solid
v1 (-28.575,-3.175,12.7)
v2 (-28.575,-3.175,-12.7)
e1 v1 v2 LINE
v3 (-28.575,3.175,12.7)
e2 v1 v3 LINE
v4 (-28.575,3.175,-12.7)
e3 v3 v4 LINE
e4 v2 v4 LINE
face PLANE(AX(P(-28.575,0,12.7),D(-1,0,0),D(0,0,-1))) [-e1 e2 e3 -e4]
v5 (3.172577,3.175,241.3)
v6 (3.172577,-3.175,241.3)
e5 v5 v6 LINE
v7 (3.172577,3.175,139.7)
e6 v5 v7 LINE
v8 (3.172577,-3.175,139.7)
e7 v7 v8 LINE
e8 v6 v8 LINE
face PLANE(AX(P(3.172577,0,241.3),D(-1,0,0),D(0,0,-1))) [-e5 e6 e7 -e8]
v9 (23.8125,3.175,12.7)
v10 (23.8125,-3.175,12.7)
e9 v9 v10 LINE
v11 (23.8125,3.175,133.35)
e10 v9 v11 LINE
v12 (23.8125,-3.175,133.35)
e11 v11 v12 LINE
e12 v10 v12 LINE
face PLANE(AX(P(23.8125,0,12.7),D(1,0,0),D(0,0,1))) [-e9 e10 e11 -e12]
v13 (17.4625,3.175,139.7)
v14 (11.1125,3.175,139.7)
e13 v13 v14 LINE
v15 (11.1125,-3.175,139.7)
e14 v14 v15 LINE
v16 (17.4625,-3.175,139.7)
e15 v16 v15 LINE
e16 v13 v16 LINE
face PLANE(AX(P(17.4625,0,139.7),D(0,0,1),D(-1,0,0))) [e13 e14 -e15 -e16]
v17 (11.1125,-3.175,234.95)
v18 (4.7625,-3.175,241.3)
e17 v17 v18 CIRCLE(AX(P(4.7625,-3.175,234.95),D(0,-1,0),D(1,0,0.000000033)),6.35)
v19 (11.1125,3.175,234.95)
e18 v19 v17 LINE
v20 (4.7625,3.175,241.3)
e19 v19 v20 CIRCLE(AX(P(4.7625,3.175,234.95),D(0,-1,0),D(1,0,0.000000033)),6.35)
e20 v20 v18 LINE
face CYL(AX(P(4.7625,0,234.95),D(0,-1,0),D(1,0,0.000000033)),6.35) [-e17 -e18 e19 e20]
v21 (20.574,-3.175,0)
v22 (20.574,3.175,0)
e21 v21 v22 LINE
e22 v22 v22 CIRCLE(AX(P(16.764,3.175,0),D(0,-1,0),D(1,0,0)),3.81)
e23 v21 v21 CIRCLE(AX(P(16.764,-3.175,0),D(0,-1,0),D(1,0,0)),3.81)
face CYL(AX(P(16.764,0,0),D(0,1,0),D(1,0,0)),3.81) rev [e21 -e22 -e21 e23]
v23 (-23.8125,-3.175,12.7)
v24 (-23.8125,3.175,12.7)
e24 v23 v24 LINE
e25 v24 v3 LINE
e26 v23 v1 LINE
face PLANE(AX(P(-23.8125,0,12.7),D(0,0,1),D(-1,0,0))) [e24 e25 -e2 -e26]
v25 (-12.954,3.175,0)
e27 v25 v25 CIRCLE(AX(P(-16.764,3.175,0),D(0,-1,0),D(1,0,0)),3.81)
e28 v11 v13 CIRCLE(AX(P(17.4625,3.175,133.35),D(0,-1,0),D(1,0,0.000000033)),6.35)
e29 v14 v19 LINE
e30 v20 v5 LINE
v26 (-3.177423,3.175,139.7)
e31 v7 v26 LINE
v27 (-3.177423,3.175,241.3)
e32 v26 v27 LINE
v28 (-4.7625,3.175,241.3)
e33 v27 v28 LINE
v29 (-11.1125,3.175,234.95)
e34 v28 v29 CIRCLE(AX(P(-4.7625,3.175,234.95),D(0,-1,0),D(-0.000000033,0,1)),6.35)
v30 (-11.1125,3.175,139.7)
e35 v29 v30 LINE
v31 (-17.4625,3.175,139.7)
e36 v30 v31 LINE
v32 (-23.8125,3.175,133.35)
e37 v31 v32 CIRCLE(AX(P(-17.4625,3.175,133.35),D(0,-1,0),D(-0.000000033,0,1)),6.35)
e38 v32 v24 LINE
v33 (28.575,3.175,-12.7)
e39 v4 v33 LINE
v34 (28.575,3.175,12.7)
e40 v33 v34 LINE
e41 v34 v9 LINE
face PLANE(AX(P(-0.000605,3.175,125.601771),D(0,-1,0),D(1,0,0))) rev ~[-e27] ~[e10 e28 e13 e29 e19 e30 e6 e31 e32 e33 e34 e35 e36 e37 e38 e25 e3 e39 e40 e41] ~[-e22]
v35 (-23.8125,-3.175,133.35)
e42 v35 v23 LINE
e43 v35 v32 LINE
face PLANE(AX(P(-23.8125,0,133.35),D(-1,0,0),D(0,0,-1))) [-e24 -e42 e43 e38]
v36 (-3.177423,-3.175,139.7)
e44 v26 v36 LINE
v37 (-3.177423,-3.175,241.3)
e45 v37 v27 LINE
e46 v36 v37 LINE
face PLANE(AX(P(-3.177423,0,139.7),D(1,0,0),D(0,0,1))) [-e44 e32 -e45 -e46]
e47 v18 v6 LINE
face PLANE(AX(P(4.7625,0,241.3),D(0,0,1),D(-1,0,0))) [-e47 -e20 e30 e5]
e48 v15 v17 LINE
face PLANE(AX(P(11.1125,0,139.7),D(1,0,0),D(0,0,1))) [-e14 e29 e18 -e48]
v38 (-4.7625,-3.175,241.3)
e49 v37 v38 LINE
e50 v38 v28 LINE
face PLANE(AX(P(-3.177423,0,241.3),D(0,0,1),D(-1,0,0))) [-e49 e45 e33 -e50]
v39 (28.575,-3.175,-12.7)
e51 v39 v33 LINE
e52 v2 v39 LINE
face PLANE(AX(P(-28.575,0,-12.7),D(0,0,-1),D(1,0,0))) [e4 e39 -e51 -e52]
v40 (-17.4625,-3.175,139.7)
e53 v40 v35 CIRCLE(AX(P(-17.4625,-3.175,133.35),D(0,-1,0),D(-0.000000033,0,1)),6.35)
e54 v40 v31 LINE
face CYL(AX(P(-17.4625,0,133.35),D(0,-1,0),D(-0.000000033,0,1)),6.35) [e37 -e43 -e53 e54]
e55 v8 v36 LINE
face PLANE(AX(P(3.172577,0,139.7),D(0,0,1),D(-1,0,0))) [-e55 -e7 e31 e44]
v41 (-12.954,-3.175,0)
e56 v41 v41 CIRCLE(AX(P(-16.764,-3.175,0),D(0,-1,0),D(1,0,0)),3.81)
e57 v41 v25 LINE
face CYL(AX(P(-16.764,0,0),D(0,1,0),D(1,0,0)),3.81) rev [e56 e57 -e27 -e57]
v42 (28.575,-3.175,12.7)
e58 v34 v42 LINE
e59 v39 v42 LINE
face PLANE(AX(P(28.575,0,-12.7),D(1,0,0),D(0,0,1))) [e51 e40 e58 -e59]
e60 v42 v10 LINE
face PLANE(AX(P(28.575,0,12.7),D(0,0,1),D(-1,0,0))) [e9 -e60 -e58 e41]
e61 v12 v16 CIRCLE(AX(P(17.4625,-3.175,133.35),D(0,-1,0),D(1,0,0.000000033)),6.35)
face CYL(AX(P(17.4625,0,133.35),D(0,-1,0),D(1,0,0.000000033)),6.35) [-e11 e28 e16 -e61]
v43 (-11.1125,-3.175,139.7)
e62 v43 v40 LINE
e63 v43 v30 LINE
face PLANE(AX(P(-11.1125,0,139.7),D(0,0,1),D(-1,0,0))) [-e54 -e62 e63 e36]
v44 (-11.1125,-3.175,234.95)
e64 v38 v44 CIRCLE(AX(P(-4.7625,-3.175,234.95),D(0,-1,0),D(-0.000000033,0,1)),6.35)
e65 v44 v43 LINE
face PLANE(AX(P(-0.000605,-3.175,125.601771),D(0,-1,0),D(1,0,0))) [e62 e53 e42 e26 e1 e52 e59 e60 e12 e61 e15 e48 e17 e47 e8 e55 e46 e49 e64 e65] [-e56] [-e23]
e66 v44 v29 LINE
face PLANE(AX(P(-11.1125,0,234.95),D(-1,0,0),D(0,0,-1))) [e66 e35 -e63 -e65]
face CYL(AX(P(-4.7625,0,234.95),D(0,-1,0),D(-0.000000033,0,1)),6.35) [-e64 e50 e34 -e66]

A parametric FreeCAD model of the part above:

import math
import FreeCAD as App
import Part
import Sketcher
from FreeCAD import Vector
Q = App.Units.Quantity

doc = App.newDocument("Part")
body = doc.addObject("PartDesign::Body", "Body")

# Sketch on XZ plane
sketch1 = doc.addObject("Sketcher::SketchObject", "Sketch")
body.addObject(sketch1)
sketch1.AttachmentSupport = (doc.XZ_Plane, [""])
sketch1.MapMode = "FlatFace"
sketch1.addGeometry(Part.LineSegment(Vector(28.575, -12.7, 0), Vector(28.575, 12.7, 0)), False)
sketch1.addGeometry(Part.LineSegment(Vector(28.575, 12.7, 0), Vector(23.8125, 12.7, 0)), False)
sketch1.addGeometry(Part.LineSegment(Vector(23.8125, 12.7, 0), Vector(23.8125, 133.35, 0)), False)
sketch1.addGeometry(Part.ArcOfCircle(Part.Circle(Vector(17.4625, 133.35, 0), Vector(0, 0, 1), 6.35), math.radians(0.000002), math.radians(89.999998)), False)
sketch1.addGeometry(Part.LineSegment(Vector(17.4625, 139.7, 0), Vector(11.1125, 139.7, 0)), False)
sketch1.addGeometry(Part.LineSegment(Vector(11.1125, 139.7, 0), Vector(11.1125, 234.95, 0)), False)
sketch1.addGeometry(Part.ArcOfCircle(Part.Circle(Vector(4.7625, 234.95, 0), Vector(0, 0, 1), 6.35), math.radians(0.000002), math.radians(89.999998)), False)
sketch1.addGeometry(Part.LineSegment(Vector(4.7625, 241.3, 0), Vector(3.172577, 241.3, 0)), False)
sketch1.addGeometry(Part.LineSegment(Vector(3.172577, 241.3, 0), Vector(3.172577, 139.7, 0)), False)
sketch1.addGeometry(Part.LineSegment(Vector(3.172577, 139.7, 0), Vector(-3.177423, 139.7, 0)), False)
sketch1.addGeometry(Part.LineSegment(Vector(-3.177423, 139.7, 0), Vector(-3.177423, 241.3, 0)), False)
sketch1.addGeometry(Part.LineSegment(Vector(-3.177423, 241.3, 0), Vector(-4.7625, 241.3, 0)), False)
sketch1.addGeometry(Part.ArcOfCircle(Part.Circle(Vector(-4.7625, 234.95, 0), Vector(0, 0, 1), 6.35), math.radians(90.000002), math.radians(179.999998)), False)
sketch1.addGeometry(Part.LineSegment(Vector(-11.1125, 234.95, 0), Vector(-11.1125, 139.7, 0)), False)
sketch1.addGeometry(Part.LineSegment(Vector(-11.1125, 139.7, 0), Vector(-17.4625, 139.7, 0)), False)
sketch1.addGeometry(Part.ArcOfCircle(Part.Circle(Vector(-17.4625, 133.35, 0), Vector(0, 0, 1), 6.35), math.radians(90.000002), math.radians(179.999998)), False)
sketch1.addGeometry(Part.LineSegment(Vector(-23.8125, 133.35, 0), Vector(-23.8125, 12.7, 0)), False)
sketch1.addGeometry(Part.LineSegment(Vector(-23.8125, 12.7, 0), Vector(-28.575, 12.7, 0)), False)
sketch1.addGeometry(Part.LineSegment(Vector(-28.575, 12.7, 0), Vector(-28.575, -12.7, 0)), False)
sketch1.addGeometry(Part.LineSegment(Vector(-28.575, -12.7, 0), Vector(28.575, -12.7, 0)), False)
sketch1.addGeometry(Part.Circle(Vector(-16.764, 0, 0), Vector(0, 0, 1), 3.81), False)
sketch1.addGeometry(Part.Circle(Vector(16.764, 0, 0), Vector(0, 0, 1), 3.81), False)
sketch1.addConstraint(Sketcher.Constraint("Coincident", 0, 2, 1, 1))
sketch1.addConstraint(Sketcher.Constraint("Coincident", 1, 2, 2, 1))
sketch1.addConstraint(Sketcher.Constraint("Tangent", 2, 2, 3, 1))
sketch1.addConstraint(Sketcher.Constraint("Tangent", 3, 2, 4, 1))
sketch1.addConstraint(Sketcher.Constraint("Coincident", 4, 2, 5, 1))
sketch1.addConstraint(Sketcher.Constraint("Tangent", 5, 2, 6, 1))
sketch1.addConstraint(Sketcher.Constraint("Tangent", 6, 2, 7, 1))
sketch1.addConstraint(Sketcher.Constraint("Coincident", 7, 2, 8, 1))
sketch1.addConstraint(Sketcher.Constraint("Coincident", 8, 2, 9, 1))
sketch1.addConstraint(Sketcher.Constraint("Coincident", 9, 2, 10, 1))
sketch1.addConstraint(Sketcher.Constraint("Coincident", 10, 2, 11, 1))
sketch1.addConstraint(Sketcher.Constraint("Tangent", 11, 2, 12, 1))
sketch1.addConstraint(Sketcher.Constraint("Tangent", 12, 2, 13, 1))
sketch1.addConstraint(Sketcher.Constraint("Coincident", 13, 2, 14, 1))
sketch1.addConstraint(Sketcher.Constraint("Tangent", 14, 2, 15, 1))
sketch1.addConstraint(Sketcher.Constraint("Tangent", 15, 2, 16, 1))
sketch1.addConstraint(Sketcher.Constraint("Coincident", 16, 2, 17, 1))
sketch1.addConstraint(Sketcher.Constraint("Coincident", 17, 2, 18, 1))
sketch1.addConstraint(Sketcher.Constraint("Coincident", 18, 2, 19, 1))
sketch1.addConstraint(Sketcher.Constraint("Coincident", 19, 2, 0, 1))
sketch1.addConstraint(Sketcher.Constraint("Vertical", 0))
sketch1.addConstraint(Sketcher.Constraint("Horizontal", 1))
sketch1.addConstraint(Sketcher.Constraint("Vertical", 2))
sketch1.addConstraint(Sketcher.Constraint("Horizontal", 4))
sketch1.addConstraint(Sketcher.Constraint("Vertical", 5))
sketch1.addConstraint(Sketcher.Constraint("Horizontal", 7))
sketch1.addConstraint(Sketcher.Constraint("Vertical", 8))
sketch1.addConstraint(Sketcher.Constraint("Horizontal", 9))
sketch1.addConstraint(Sketcher.Constraint("Vertical", 10))
sketch1.addConstraint(Sketcher.Constraint("Horizontal", 11))
sketch1.addConstraint(Sketcher.Constraint("Vertical", 13))
sketch1.addConstraint(Sketcher.Constraint("Horizontal", 14))
sketch1.addConstraint(Sketcher.Constraint("Vertical", 16))
sketch1.addConstraint(Sketcher.Constraint("Horizontal", 17))
sketch1.addConstraint(Sketcher.Constraint("Vertical", 18))
sketch1.addConstraint(Sketcher.Constraint("Horizontal", 19))
sketch1.addConstraint(Sketcher.Constraint("Equal", 3, 6))
sketch1.addConstraint(Sketcher.Constraint("Equal", 6, 12))
sketch1.addConstraint(Sketcher.Constraint("Equal", 12, 15))
sketch1.addConstraint(Sketcher.Constraint("Equal", 20, 21))
sketch1.addConstraint(Sketcher.Constraint("Symmetric", 20, 3, 21, 3, -1, 1))
sketch1.addConstraint(Sketcher.Constraint("Symmetric", 0, 2, 18, 2, -1, 1))
sketch1.addConstraint(Sketcher.Constraint("Symmetric", 6, 3, 12, 3, -2))
sketch1.addConstraint(Sketcher.Constraint("Symmetric", 3, 3, 15, 3, -2))
sketch1.addConstraint(Sketcher.Constraint("PointOnObject", 20, 3, -1))
sketch1.addConstraint(Sketcher.Constraint("Horizontal", 4, 2, 8, 2))
sketch1.addConstraint(Sketcher.Constraint("Horizontal", 1, 2, 16, 2))
sketch1.addConstraint(Sketcher.Constraint("Equal", 4, 9))
sketch1.addConstraint(Sketcher.Constraint("Diameter", 20, Q("0.3 in")))
sketch1.addConstraint(Sketcher.Constraint("DistanceY", 0, 1, 0, 2, Q("1 in")))
sketch1.addConstraint(Sketcher.Constraint("DistanceY", 8, 2, 8, 1, Q("4 in")))
sketch1.addConstraint(Sketcher.Constraint("Radius", 3, Q("0.25 in")))
sketch1.addConstraint(Sketcher.Constraint("DistanceX", 4, 2, 4, 1, Q("0.25 in")))
sketch1.addConstraint(Sketcher.Constraint("DistanceX", 19, 1, 19, 2, Q("2.25 in")))
sketch1.addConstraint(Sketcher.Constraint("DistanceY", 2, 1, 2, 2, Q("4.75 in")))
sketch1.addConstraint(Sketcher.Constraint("DistanceX", 1, 2, 1, 1, Q("0.1875 in")))
sketch1.addConstraint(Sketcher.Constraint("DistanceX", 20, 3, -1, 1, Q("0.66 in")))
sketch1.addConstraint(Sketcher.Constraint("DistanceX", 7, 2, 7, 1, 1.589923))
pad1 = doc.addObject("PartDesign::Pad", "Pad")
body.addObject(pad1)
pad1.Profile = sketch1
pad1.Length = Q("0.25 in")
pad1.Midplane = True

doc.recompute()
